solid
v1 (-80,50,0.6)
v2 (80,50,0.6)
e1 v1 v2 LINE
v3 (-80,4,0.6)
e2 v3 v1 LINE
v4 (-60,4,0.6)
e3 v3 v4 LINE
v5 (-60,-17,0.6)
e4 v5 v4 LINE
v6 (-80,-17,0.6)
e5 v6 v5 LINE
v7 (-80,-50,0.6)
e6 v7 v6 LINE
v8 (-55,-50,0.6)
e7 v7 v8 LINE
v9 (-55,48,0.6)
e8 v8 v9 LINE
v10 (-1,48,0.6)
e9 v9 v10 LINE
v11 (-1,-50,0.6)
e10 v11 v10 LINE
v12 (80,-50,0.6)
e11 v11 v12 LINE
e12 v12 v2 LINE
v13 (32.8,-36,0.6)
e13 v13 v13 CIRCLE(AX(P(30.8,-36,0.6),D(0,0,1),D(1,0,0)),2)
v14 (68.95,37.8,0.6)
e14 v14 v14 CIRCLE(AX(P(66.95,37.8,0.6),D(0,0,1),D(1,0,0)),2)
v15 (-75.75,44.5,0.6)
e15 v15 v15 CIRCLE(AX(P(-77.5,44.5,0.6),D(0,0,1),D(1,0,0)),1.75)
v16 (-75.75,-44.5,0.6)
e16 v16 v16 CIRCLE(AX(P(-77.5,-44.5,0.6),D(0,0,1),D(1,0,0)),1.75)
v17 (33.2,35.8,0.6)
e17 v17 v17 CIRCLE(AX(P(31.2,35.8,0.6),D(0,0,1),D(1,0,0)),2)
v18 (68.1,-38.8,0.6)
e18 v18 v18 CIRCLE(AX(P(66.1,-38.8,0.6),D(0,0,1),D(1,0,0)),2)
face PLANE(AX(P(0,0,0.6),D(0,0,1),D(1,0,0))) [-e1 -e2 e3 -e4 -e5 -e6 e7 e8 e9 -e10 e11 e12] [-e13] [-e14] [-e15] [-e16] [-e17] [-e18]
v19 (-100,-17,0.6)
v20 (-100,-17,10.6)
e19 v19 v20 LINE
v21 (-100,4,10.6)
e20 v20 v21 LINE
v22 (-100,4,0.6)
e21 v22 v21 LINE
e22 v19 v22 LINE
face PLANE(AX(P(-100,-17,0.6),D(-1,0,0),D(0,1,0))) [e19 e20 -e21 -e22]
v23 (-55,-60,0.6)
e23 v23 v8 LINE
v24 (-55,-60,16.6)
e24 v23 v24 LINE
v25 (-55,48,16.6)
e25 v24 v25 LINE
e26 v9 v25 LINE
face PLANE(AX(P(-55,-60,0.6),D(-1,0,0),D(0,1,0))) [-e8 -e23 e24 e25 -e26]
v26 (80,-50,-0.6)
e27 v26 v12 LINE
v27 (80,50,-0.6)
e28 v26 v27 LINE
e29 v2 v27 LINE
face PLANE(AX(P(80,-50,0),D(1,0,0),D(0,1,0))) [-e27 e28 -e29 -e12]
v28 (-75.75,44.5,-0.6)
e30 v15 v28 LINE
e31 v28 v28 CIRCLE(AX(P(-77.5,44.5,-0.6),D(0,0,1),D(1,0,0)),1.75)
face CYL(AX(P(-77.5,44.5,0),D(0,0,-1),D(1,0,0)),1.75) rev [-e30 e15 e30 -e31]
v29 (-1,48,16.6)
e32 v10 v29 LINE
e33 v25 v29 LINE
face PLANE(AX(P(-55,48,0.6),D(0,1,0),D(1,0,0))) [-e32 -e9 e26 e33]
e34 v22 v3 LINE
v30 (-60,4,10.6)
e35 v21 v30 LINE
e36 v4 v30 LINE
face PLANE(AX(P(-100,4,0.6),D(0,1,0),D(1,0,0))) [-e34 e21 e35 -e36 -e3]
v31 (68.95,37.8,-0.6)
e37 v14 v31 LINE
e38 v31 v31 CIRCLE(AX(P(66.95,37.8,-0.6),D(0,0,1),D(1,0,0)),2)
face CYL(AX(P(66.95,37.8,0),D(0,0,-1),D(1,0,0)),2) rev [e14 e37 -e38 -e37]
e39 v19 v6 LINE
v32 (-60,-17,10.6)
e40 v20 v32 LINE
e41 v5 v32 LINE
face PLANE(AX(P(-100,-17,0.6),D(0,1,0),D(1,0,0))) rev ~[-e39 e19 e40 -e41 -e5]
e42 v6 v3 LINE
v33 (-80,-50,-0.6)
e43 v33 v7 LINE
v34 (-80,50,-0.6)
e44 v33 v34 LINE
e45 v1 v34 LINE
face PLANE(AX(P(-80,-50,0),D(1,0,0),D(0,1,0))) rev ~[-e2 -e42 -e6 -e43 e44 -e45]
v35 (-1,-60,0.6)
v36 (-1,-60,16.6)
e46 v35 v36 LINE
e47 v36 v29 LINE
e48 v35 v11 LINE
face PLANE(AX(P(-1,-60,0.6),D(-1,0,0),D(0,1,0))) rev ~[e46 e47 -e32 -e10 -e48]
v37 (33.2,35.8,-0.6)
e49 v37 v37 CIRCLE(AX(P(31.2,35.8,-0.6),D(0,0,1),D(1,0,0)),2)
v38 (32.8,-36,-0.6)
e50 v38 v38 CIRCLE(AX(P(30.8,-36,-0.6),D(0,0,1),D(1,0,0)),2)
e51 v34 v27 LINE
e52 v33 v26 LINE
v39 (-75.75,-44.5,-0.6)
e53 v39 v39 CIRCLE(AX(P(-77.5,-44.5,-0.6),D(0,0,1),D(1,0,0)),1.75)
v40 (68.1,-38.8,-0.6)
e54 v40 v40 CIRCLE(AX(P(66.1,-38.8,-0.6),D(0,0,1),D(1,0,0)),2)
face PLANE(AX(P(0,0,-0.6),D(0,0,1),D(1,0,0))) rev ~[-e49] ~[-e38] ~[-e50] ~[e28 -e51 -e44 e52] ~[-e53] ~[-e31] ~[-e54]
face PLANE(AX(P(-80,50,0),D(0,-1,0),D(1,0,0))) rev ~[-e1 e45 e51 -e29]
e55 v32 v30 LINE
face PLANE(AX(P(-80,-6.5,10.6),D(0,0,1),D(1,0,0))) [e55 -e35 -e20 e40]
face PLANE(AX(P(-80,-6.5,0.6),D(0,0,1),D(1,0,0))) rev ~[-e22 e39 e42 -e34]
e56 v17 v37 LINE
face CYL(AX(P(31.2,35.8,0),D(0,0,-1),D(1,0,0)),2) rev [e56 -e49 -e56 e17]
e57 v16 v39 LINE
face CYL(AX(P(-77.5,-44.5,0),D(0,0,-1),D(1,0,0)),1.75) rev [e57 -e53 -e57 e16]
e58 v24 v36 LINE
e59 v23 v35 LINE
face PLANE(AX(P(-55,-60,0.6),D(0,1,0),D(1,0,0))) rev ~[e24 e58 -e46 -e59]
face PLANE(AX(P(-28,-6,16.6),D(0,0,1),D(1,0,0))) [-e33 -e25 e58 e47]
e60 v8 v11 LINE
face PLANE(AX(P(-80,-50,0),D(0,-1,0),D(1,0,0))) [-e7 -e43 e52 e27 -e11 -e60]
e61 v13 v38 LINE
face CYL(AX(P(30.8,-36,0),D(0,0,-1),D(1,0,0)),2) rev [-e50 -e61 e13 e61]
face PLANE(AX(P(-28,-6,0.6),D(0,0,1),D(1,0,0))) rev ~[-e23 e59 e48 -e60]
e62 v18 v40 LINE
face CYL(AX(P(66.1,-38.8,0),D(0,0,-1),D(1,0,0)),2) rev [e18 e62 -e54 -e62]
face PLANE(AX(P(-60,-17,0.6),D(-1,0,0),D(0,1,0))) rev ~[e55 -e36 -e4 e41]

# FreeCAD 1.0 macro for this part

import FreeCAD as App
import Part
import Sketcher
from FreeCAD import Vector

doc = App.newDocument("Part")
body = doc.addObject("PartDesign::Body", "Body")

sketch1 = body.newObject("Sketcher::SketchObject", "Sketch")
sketch1.AttachmentSupport = (doc.getObject("XY_Plane"), [""])
sketch1.MapMode = "FlatFace"
sketch1.addGeometry(Part.LineSegment(Vector(-80, 50, 0), Vector(-80, -50, 0)), False)
sketch1.addGeometry(Part.LineSegment(Vector(-80, -50, 0), Vector(80, -50, 0)), False)
sketch1.addGeometry(Part.LineSegment(Vector(80, -50, 0), Vector(80, 50, 0)), False)
sketch1.addGeometry(Part.LineSegment(Vector(80, 50, 0), Vector(-80, 50, 0)), False)
sketch1.addGeometry(Part.Circle(Vector(-77.5, -44.5, 0), Vector(0, 0, 1), 1.75), False)
sketch1.addGeometry(Part.Circle(Vector(30.8, -36, 0), Vector(0, 0, 1), 2), False)
sketch1.addGeometry(Part.Circle(Vector(66.1, -38.8, 0), Vector(0, 0, 1), 2), False)
sketch1.addGeometry(Part.Circle(Vector(-77.5, 44.5, 0), Vector(0, 0, 1), 1.75), False)
sketch1.addGeometry(Part.Circle(Vector(31.2, 35.8, 0), Vector(0, 0, 1), 2), False)
sketch1.addGeometry(Part.Circle(Vector(66.95, 37.8, 0), Vector(0, 0, 1), 2), False)
sketch1.addConstraint(Sketcher.Constraint("Coincident", 0, 2, 1, 1))
sketch1.addConstraint(Sketcher.Constraint("Coincident", 1, 2, 2, 1))
sketch1.addConstraint(Sketcher.Constraint("Coincident", 2, 2, 3, 1))
sketch1.addConstraint(Sketcher.Constraint("Coincident", 3, 2, 0, 1))
sketch1.addConstraint(Sketcher.Constraint("Vertical", 0))
sketch1.addConstraint(Sketcher.Constraint("Horizontal", 1))
sketch1.addConstraint(Sketcher.Constraint("Vertical", 2))
sketch1.addConstraint(Sketcher.Constraint("Horizontal", 3))
sketch1.addConstraint(Sketcher.Constraint("Equal", 5, 6))
sketch1.addConstraint(Sketcher.Constraint("Equal", 4, 7))
sketch1.addConstraint(Sketcher.Constraint("Equal", 6, 8))
sketch1.addConstraint(Sketcher.Constraint("Equal", 8, 9))
sketch1.addConstraint(Sketcher.Constraint("Symmetric", 0, 2, 2, 2, -1, 1))
sketch1.addConstraint(Sketcher.Constraint("Symmetric", 4, 3, 7, 3, -1))
sketch1.addConstraint(Sketcher.Constraint("Diameter", 5, 4.0))
sketch1.addConstraint(Sketcher.Constraint("Diameter", 4, 3.5))
sketch1.addConstraint(Sketcher.Constraint("DistanceX", 1, 1, 1, 2, 160.0))
sketch1.addConstraint(Sketcher.Constraint("DistanceY", 0, 2, 0, 1, 100.0))
sketch1.addConstraint(Sketcher.Constraint("DistanceY", 5, 3, -1, 1, 36.0))
sketch1.addConstraint(Sketcher.Constraint("DistanceY", 4, 3, 7, 3, 89.0))
sketch1.addConstraint(Sketcher.Constraint("DistanceY", 8, 3, 9, 3, 2.0))
sketch1.addConstraint(Sketcher.Constraint("DistanceX", 4, 3, -1, 1, 77.5))
sketch1.addConstraint(Sketcher.Constraint("DistanceX", -1, 1, 5, 3, 30.8))
sketch1.addConstraint(Sketcher.Constraint("DistanceX", -1, 1, 6, 3, 66.1))
sketch1.addConstraint(Sketcher.Constraint("DistanceY", 6, 3, -1, 1, 38.8))
sketch1.addConstraint(Sketcher.Constraint("DistanceX", -1, 1, 8, 3, 31.2))
sketch1.addConstraint(Sketcher.Constraint("DistanceY", -1, 1, 8, 3, 35.8))
sketch1.addConstraint(Sketcher.Constraint("DistanceX", -1, 1, 9, 3, 66.95))
pad1 = body.newObject("PartDesign::Pad", "Pad")
pad1.Profile = sketch1
pad1.Length = 1.2
pad1.Midplane = True

sketch2 = body.newObject("Sketcher::SketchObject", "Sketch001")
sketch2.AttachmentSupport = (doc.getObject("XY_Plane"), [""])
sketch2.MapMode = "FlatFace"
sketch2.AttachmentOffset = App.Placement(Vector(0, 0, 0.6), App.Rotation())
sketch2.addGeometry(Part.LineSegment(Vector(-55, 48, 0), Vector(-55, -60, 0)), False)
sketch2.addGeometry(Part.LineSegment(Vector(-55, -60, 0), Vector(-1, -60, 0)), False)
sketch2.addGeometry(Part.LineSegment(Vector(-1, -60, 0), Vector(-1, 48, 0)), False)
sketch2.addGeometry(Part.LineSegment(Vector(-1, 48, 0), Vector(-55, 48, 0)), False)
sketch2.addConstraint(Sketcher.Constraint("Coincident", 0, 2, 1, 1))
sketch2.addConstraint(Sketcher.Constraint("Coincident", 1, 2, 2, 1))
sketch2.addConstraint(Sketcher.Constraint("Coincident", 2, 2, 3, 1))
sketch2.addConstraint(Sketcher.Constraint("Coincident", 3, 2, 0, 1))
sketch2.addConstraint(Sketcher.Constraint("Vertical", 0))
sketch2.addConstraint(Sketcher.Constraint("Horizontal", 1))
sketch2.addConstraint(Sketcher.Constraint("Vertical", 2))
sketch2.addConstraint(Sketcher.Constraint("Horizontal", 3))
sketch2.addConstraint(Sketcher.Constraint("DistanceX", 1, 1, 1, 2, 54.0))
sketch2.addConstraint(Sketcher.Constraint("DistanceY", 0, 2, 0, 1, 108.0))
sketch2.addConstraint(Sketcher.Constraint("DistanceX", 0, 2, -1, 1, 55.0))
sketch2.addConstraint(Sketcher.Constraint("DistanceY", 0, 2, -1, 1, 60.0))
pad2 = body.newObject("PartDesign::Pad", "Pad001")
pad2.Profile = sketch2
pad2.Length = 16

sketch3 = body.newObject("Sketcher::SketchObject", "Sketch002")
sketch3.AttachmentSupport = (doc.getObject("XY_Plane"), [""])
sketch3.MapMode = "FlatFace"
sketch3.AttachmentOffset = App.Placement(Vector(0, 0, 0.6), App.Rotation())
sketch3.addGeometry(Part.LineSegment(Vector(-100, 4, 0), Vector(-100, -17, 0)), False)
sketch3.addGeometry(Part.LineSegment(Vector(-100, -17, 0), Vector(-60, -17, 0)), False)
sketch3.addGeometry(Part.LineSegment(Vector(-60, -17, 0), Vector(-60, 4, 0)), False)
sketch3.addGeometry(Part.LineSegment(Vector(-60, 4, 0), Vector(-100, 4, 0)), False)
sketch3.addConstraint(Sketcher.Constraint("Coincident", 0, 2, 1, 1))
sketch3.addConstraint(Sketcher.Constraint("Coincident", 1, 2, 2, 1))
sketch3.addConstraint(Sketcher.Constraint("Coincident", 2, 2, 3, 1))
sketch3.addConstraint(Sketcher.Constraint("Coincident", 3, 2, 0, 1))
sketch3.addConstraint(Sketcher.Constraint("Vertical", 0))
sketch3.addConstraint(Sketcher.Constraint("Horizontal", 1))
sketch3.addConstraint(Sketcher.Constraint("Vertical", 2))
sketch3.addConstraint(Sketcher.Constraint("Horizontal", 3))
sketch3.addConstraint(Sketcher.Constraint("DistanceX", 1, 1, 1, 2, 40.0))
sketch3.addConstraint(Sketcher.Constraint("DistanceY", 0, 2, 0, 1, 21.0))
sketch3.addConstraint(Sketcher.Constraint("DistanceX", 0, 2, -1, 1, 100.0))
sketch3.addConstraint(Sketcher.Constraint("DistanceY", 0, 2, -1, 1, 17.0))
pad3 = body.newObject("PartDesign::Pad", "Pad002")
pad3.Profile = sketch3
pad3.Length = 10

doc.recompute()
